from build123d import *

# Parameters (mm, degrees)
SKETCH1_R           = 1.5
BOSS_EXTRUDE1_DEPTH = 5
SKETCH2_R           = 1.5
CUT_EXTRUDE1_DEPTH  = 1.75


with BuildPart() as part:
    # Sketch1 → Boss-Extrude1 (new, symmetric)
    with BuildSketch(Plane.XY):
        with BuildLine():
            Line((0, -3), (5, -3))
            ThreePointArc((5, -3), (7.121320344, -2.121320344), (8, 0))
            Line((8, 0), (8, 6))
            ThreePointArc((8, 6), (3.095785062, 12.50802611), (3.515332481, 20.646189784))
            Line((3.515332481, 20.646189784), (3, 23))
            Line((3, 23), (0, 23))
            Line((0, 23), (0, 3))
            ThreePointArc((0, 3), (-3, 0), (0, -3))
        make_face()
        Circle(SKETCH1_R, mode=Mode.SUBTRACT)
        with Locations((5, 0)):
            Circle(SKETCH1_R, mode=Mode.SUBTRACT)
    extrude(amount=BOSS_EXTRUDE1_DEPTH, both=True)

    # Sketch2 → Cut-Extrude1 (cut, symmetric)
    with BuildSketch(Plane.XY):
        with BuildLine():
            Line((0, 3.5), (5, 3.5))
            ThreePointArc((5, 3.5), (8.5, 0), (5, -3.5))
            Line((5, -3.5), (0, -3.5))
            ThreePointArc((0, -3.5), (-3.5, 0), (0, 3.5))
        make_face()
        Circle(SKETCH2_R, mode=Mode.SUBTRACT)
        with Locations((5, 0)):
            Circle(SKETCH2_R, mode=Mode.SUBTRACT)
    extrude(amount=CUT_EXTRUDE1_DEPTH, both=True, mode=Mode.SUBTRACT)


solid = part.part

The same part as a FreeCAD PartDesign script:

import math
import FreeCAD as App
import Part
import Sketcher

V = App.Vector

doc = App.newDocument("Part")
body = doc.addObject("PartDesign::Body", "Body")

# Sketch on XY plane
sketch1 = body.newObject("Sketcher::SketchObject", "Sketch")
sketch1.AttachmentSupport = (doc.getObject("XY_Plane"), [""])
sketch1.MapMode = "FlatFace"
sketch1.addGeometry(Part.LineSegment(V(0, -3, 0), V(5, -3, 0)), False)
sketch1.addGeometry(Part.ArcOfCircle(Part.Circle(V(5, 0, 0), V(0, 0, 1), 3), math.radians(-90), math.radians(0)), False)
sketch1.addGeometry(Part.LineSegment(V(8, 0, 0), V(8, 6, 0)), False)
sketch1.addGeometry(Part.ArcOfCircle(Part.Circle(V(14.5, 16, 0), V(0, 0, 1), 11.9), math.radians(157), math.radians(237)), False)
sketch1.addGeometry(Part.LineSegment(V(3.5, 20.6, 0), V(3, 23, 0)), False)
sketch1.addGeometry(Part.LineSegment(V(3, 23, 0), V(0, 23, 0)), False)
sketch1.addGeometry(Part.LineSegment(V(0, 23, 0), V(0, 3, 0)), False)
sketch1.addGeometry(Part.ArcOfCircle(Part.Circle(V(0, 0, 0), V(0, 0, 1), 3), math.radians(90), math.radians(270)), False)
sketch1.addGeometry(Part.Circle(V(0, 0, 0), V(0, 0, 1), 1.5), False)
sketch1.addGeometry(Part.Circle(V(5, 0, 0), V(0, 0, 1), 1.5), False)
sketch1.addConstraint(Sketcher.Constraint("Tangent", 0, 2, 1, 1))
sketch1.addConstraint(Sketcher.Constraint("Tangent", 1, 2, 2, 1))
sketch1.addConstraint(Sketcher.Constraint("Coincident", 2, 2, 3, 2))
sketch1.addConstraint(Sketcher.Constraint("Coincident", 3, 1, 4, 1))
sketch1.addConstraint(Sketcher.Constraint("Coincident", 4, 2, 5, 1))
sketch1.addConstraint(Sketcher.Constraint("Coincident", 5, 2, 6, 1))
sketch1.addConstraint(Sketcher.Constraint("Coincident", 6, 2, 7, 1))
sketch1.addConstraint(Sketcher.Constraint("Tangent", 7, 2, 0, 1))
sketch1.addConstraint(Sketcher.Constraint("Horizontal", 0))
sketch1.addConstraint(Sketcher.Constraint("Vertical", 2))
sketch1.addConstraint(Sketcher.Constraint("Horizontal", 5))
sketch1.addConstraint(Sketcher.Constraint("Vertical", 6))
sketch1.addConstraint(Sketcher.Constraint("Coincident", 7, 3, -1, 1))
sketch1.addConstraint(Sketcher.Constraint("Coincident", 8, 3, -1, 1))
sketch1.addConstraint(Sketcher.Constraint("Coincident", 9, 3, 1, 3))
sketch1.addConstraint(Sketcher.Constraint("Equal", 1, 7))
sketch1.addConstraint(Sketcher.Constraint("Equal", 8, 9))
sketch1.addConstraint(Sketcher.Constraint("PointOnObject", 5, 2, -2))
sketch1.addConstraint(Sketcher.Constraint("Diameter", 8, 3.0))
sketch1.addConstraint(Sketcher.Constraint("Radius", 1, 3.0))
sketch1.addConstraint(Sketcher.Constraint("DistanceX", 0, 1, 0, 2, 5.0))
sketch1.addConstraint(Sketcher.Constraint("DistanceX", 5, 2, 5, 1, 3.0))
sketch1.addConstraint(Sketcher.Constraint("DistanceY", 2, 1, 2, 2, 6.0))
sketch1.addConstraint(Sketcher.Constraint("DistanceY", 6, 2, 6, 1, 20.0))
sketch1.addConstraint(Sketcher.Constraint("DistanceY", -1, 1, 3, 3, 16.0))
sketch1.addConstraint(Sketcher.Constraint("DistanceX", -1, 1, 3, 3, 14.5))
sketch1.addConstraint(Sketcher.Constraint("DistanceY", -1, 1, 3, 1, 20.64619))
pad1 = body.newObject("PartDesign::Pad", "Pad")
pad1.Profile = sketch1
pad1.Length = 10
pad1.Midplane = True

# Sketch on XY plane
sketch2 = body.newObject("Sketcher::SketchObject", "Sketch001")
sketch2.AttachmentSupport = (doc.getObject("XY_Plane"), [""])
sketch2.MapMode = "FlatFace"
sketch2.addGeometry(Part.LineSegment(V(5, 3.5, 0), V(0, 3.5, 0)), False)
sketch2.addGeometry(Part.ArcOfCircle(Part.Circle(V(0, 0, 0), V(0, 0, 1), 3.5), math.radians(90), math.radians(270)), False)
sketch2.addGeometry(Part.LineSegment(V(0, -3.5, 0), V(5, -3.5, 0)), False)
sketch2.addGeometry(Part.ArcOfCircle(Part.Circle(V(5, 0, 0), V(0, 0, 1), 3.5), math.radians(-90), math.radians(90)), False)
sketch2.addGeometry(Part.Circle(V(5, 0, 0), V(0, 0, 1), 1.5), False)
sketch2.addGeometry(Part.Circle(V(0, 0, 0), V(0, 0, 1), 1.5), False)
sketch2.addConstraint(Sketcher.Constraint("Tangent", 0, 2, 1, 1))
sketch2.addConstraint(Sketcher.Constraint("Tangent", 1, 2, 2, 1))
sketch2.addConstraint(Sketcher.Constraint("Tangent", 2, 2, 3, 1))
sketch2.addConstraint(Sketcher.Constraint("Tangent", 3, 2, 0, 1))
sketch2.addConstraint(Sketcher.Constraint("Horizontal", 0))
sketch2.addConstraint(Sketcher.Constraint("Horizontal", 2))
sketch2.addConstraint(Sketcher.Constraint("Coincident", 1, 3, -1, 1))
sketch2.addConstraint(Sketcher.Constraint("Coincident", 5, 3, -1, 1))
sketch2.addConstraint(Sketcher.Constraint("Coincident", 4, 3, 3, 3))
sketch2.addConstraint(Sketcher.Constraint("Equal", 4, 5))
sketch2.addConstraint(Sketcher.Constraint("Diameter", 4, 3.0))
sketch2.addConstraint(Sketcher.Constraint("Radius", 1, 3.5))
sketch2.addConstraint(Sketcher.Constraint("DistanceX", 0, 2, 0, 1, 5.0))
pocket1 = body.newObject("PartDesign::Pocket", "Pocket")
pocket1.Profile = sketch2
pocket1.Length = 3.5
pocket1.Midplane = True

doc.recompute()
